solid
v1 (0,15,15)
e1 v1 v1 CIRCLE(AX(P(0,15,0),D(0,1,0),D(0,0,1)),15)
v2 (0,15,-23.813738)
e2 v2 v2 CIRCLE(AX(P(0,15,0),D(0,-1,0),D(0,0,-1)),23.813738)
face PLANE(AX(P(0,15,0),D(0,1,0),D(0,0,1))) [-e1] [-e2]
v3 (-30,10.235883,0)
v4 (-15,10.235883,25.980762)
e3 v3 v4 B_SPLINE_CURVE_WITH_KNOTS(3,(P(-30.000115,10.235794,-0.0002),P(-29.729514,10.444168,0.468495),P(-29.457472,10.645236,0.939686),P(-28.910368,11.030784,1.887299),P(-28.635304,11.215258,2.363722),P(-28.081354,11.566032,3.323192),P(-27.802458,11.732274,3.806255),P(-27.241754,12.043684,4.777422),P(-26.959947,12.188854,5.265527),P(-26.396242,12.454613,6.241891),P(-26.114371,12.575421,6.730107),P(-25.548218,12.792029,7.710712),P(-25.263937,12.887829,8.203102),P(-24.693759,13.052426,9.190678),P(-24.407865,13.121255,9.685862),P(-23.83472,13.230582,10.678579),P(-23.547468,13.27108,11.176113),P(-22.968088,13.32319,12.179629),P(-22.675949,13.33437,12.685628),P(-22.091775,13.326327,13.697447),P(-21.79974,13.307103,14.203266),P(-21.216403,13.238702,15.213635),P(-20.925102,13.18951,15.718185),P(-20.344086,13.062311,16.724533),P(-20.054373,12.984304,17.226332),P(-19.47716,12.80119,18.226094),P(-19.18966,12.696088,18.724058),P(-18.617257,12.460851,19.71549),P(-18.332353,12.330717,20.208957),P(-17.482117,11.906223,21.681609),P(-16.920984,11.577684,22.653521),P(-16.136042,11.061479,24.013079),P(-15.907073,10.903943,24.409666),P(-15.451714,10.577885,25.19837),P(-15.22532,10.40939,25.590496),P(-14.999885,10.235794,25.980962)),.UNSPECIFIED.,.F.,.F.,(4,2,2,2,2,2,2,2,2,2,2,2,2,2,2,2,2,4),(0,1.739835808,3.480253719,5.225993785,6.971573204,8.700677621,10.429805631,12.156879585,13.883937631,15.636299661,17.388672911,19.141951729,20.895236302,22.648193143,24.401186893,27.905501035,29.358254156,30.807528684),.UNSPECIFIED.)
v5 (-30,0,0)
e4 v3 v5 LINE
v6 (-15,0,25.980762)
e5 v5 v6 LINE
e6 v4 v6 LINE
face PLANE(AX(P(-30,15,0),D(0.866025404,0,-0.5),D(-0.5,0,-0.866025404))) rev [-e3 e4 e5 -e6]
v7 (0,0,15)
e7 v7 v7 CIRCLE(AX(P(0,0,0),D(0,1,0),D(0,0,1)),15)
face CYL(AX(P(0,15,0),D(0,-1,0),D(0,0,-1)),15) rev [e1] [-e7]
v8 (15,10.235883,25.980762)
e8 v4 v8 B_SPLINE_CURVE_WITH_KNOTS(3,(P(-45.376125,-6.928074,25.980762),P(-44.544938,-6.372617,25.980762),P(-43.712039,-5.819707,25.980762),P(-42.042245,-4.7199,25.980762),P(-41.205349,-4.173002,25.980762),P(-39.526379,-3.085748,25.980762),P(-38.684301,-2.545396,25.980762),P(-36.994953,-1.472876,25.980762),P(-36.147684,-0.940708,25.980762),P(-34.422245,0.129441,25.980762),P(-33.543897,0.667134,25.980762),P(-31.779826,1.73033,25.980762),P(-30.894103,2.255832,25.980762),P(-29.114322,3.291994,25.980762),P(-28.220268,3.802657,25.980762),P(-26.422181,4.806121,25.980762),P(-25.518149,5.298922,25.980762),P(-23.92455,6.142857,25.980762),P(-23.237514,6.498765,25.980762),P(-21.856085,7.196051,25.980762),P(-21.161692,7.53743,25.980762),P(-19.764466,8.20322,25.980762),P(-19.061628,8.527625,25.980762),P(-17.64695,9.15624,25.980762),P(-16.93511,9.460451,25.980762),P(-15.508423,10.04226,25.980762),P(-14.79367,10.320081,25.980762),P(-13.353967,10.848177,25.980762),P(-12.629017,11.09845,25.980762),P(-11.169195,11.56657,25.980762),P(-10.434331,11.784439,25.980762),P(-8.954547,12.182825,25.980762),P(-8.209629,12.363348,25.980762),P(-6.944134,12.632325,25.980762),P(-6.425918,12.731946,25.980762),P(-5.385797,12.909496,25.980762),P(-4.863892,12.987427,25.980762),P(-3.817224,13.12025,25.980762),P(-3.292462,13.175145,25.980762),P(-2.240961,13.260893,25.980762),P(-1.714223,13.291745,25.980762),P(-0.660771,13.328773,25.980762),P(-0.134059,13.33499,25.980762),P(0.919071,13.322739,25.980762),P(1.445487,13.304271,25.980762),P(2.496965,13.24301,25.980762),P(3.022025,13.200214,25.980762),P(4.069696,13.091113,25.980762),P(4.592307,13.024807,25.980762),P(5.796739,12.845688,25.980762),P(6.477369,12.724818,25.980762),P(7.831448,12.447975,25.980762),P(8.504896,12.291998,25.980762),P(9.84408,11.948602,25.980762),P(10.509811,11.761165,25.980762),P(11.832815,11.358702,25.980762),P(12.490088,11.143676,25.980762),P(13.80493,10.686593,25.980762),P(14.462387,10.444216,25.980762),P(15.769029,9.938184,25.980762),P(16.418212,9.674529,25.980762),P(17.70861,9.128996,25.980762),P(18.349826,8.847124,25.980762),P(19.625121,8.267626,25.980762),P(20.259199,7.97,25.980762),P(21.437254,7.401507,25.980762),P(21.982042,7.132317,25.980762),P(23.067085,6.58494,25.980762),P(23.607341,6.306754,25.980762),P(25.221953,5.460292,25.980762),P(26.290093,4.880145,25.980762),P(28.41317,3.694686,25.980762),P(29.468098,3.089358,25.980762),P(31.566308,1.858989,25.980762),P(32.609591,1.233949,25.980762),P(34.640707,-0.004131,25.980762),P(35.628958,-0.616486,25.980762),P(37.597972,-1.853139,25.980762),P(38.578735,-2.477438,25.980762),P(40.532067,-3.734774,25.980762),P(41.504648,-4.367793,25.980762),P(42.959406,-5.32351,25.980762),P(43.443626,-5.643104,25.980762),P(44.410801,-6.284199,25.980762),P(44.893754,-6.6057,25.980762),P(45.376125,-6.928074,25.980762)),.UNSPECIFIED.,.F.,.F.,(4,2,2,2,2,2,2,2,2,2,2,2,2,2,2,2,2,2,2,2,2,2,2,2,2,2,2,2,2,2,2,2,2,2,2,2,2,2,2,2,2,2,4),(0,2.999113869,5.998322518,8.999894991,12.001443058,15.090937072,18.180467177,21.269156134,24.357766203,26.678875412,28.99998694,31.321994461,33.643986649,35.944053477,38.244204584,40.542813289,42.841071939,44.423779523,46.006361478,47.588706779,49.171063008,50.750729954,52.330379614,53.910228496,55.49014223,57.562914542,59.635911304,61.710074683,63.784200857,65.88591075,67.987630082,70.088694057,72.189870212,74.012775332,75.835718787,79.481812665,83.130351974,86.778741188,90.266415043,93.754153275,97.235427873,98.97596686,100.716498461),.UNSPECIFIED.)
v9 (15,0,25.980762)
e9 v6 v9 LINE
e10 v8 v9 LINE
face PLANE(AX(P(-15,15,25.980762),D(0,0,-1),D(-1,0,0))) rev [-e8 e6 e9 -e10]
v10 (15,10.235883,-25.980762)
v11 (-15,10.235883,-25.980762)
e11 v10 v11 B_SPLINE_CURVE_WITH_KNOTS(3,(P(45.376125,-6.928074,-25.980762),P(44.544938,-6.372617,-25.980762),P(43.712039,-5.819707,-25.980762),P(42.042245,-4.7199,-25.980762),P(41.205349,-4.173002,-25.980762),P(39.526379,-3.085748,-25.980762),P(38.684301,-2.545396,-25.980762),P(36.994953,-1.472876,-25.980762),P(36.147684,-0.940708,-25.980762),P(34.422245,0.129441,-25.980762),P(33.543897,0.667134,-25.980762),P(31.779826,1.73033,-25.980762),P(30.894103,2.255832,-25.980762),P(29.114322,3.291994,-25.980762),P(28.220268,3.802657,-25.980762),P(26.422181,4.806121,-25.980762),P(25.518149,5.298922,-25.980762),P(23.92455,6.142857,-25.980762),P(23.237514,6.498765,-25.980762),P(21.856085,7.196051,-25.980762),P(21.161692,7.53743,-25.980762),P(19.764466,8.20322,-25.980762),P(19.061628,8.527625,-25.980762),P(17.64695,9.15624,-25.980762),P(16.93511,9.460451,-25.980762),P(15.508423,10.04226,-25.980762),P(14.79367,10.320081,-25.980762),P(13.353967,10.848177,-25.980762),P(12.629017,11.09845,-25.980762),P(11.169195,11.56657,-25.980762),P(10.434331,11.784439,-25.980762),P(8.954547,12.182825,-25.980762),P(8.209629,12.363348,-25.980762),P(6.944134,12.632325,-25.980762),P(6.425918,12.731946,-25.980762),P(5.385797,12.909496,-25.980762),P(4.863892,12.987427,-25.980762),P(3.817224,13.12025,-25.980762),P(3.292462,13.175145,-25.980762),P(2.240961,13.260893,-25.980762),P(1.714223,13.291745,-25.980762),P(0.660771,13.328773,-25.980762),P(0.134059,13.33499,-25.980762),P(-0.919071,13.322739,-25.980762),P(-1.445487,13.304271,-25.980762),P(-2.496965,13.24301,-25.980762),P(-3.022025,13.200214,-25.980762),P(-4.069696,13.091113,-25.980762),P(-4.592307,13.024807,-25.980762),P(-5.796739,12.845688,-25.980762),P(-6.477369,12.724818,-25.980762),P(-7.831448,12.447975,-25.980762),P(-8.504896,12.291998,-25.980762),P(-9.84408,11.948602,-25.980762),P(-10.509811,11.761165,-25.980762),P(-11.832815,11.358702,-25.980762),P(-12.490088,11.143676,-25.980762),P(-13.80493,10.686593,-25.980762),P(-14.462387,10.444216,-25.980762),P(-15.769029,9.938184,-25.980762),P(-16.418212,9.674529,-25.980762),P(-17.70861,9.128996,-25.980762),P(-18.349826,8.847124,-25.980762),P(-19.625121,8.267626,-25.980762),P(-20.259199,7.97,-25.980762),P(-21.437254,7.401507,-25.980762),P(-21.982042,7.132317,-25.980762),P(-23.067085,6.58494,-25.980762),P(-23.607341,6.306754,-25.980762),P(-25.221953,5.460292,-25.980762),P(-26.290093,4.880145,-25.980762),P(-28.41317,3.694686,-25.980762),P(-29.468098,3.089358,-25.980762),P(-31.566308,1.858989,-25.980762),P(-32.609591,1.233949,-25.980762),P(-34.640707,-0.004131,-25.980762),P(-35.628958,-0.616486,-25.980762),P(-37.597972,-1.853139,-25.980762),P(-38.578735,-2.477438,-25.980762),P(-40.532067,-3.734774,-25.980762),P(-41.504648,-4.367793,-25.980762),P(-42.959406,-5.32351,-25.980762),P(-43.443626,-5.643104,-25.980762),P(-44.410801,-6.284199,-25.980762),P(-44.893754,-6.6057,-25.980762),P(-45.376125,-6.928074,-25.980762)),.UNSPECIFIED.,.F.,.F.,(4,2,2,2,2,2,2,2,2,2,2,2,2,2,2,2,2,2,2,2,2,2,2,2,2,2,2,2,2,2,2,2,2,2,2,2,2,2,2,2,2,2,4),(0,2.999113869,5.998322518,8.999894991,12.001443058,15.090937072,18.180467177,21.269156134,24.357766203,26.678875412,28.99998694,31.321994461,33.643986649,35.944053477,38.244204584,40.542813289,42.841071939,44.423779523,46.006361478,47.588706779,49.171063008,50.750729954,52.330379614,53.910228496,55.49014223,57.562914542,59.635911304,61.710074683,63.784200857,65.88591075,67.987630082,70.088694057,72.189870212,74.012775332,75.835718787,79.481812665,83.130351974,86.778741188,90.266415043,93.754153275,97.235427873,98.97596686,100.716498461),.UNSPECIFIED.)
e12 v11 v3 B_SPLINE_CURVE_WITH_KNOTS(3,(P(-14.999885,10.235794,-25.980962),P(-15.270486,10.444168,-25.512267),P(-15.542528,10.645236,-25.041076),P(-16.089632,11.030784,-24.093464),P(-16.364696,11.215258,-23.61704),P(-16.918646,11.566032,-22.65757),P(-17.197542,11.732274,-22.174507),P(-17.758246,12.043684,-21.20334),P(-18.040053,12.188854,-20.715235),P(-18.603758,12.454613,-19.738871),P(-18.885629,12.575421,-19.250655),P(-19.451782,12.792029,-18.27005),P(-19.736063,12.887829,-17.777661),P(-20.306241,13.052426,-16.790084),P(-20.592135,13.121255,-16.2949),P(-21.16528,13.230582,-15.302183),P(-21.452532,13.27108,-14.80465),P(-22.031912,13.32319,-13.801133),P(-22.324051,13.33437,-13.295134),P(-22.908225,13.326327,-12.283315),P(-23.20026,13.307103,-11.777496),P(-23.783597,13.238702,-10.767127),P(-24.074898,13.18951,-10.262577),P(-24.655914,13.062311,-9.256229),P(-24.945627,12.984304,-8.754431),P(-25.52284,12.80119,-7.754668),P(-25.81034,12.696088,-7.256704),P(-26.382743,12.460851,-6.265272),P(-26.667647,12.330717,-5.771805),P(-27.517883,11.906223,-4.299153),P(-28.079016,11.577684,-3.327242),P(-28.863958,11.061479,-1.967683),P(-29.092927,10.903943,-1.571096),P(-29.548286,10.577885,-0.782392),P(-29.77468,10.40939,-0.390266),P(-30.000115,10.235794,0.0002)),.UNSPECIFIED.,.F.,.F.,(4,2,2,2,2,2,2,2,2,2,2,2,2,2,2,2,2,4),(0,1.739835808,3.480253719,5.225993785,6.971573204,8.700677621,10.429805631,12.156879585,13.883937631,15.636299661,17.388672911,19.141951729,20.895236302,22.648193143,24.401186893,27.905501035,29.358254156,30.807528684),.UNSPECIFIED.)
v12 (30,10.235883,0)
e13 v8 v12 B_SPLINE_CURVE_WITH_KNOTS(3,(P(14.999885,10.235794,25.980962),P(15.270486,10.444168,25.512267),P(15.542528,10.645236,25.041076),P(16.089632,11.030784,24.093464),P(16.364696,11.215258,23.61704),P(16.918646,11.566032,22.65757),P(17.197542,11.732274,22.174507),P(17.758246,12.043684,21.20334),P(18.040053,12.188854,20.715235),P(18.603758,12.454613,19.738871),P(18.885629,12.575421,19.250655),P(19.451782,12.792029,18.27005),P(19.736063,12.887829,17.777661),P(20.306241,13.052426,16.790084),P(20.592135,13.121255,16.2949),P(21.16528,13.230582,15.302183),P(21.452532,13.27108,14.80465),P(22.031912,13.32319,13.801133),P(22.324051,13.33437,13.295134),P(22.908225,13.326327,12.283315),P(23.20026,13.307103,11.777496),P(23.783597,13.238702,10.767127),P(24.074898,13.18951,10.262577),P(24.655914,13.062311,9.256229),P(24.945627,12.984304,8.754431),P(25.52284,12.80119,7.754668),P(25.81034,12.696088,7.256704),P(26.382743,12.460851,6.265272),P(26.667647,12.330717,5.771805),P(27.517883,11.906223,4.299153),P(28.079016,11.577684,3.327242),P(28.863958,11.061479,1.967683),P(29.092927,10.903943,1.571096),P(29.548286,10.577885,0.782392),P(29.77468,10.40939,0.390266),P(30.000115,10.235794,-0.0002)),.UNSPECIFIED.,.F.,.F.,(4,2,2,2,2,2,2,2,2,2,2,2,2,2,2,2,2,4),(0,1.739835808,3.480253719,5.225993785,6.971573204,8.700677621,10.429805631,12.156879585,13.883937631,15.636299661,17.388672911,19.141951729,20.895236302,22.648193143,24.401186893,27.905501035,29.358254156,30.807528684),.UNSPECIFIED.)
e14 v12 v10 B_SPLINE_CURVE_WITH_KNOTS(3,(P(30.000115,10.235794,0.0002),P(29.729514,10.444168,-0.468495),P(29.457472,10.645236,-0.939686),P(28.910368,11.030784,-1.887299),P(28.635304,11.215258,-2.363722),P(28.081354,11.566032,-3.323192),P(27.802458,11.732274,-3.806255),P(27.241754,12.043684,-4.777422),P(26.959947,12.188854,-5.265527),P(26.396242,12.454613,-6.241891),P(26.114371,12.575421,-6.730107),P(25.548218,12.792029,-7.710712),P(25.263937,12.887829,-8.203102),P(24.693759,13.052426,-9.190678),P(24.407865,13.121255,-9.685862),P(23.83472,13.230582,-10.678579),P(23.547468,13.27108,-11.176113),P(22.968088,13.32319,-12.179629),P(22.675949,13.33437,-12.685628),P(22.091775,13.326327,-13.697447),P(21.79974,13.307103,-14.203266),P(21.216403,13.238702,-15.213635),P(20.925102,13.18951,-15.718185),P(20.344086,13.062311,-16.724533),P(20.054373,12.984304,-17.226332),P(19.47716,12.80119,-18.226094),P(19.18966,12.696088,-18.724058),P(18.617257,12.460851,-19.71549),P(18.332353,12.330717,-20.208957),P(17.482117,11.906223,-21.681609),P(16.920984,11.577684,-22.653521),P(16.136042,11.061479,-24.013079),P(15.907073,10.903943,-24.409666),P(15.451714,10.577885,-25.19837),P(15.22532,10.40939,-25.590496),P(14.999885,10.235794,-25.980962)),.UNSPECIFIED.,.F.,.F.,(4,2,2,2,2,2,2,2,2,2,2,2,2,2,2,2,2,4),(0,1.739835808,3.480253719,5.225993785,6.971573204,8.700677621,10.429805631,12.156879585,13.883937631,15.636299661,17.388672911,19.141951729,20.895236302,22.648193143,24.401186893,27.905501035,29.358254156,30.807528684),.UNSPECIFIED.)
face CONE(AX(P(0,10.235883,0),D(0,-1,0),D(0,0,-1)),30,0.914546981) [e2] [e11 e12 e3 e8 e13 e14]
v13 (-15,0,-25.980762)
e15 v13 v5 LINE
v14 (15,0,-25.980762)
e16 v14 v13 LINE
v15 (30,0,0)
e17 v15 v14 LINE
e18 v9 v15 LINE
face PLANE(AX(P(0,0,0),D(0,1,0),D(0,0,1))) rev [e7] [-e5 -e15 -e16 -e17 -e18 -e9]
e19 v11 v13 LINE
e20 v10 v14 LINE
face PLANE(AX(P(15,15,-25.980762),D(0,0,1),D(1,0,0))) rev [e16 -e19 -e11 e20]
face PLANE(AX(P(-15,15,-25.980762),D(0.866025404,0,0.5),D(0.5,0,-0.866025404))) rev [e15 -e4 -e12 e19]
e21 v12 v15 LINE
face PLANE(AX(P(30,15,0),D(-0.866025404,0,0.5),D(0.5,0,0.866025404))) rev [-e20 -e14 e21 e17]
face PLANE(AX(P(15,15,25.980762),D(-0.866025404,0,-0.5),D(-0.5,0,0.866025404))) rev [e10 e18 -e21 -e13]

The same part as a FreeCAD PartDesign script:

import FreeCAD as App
import Part
import Sketcher
from FreeCAD import Vector
Q = App.Units.Quantity


def add_polygon(sketch, points):
    """Adds a closed chain of lines whose ends are joined by coincident constraints."""
    first, n = sketch.GeometryCount, len(points)
    for a, b in zip(points, points[1:] + points[:1]):
        sketch.addGeometry(Part.LineSegment(App.Vector(*a, 0), App.Vector(*b, 0)), False)
    for i in range(n):
        sketch.addConstraint(Sketcher.Constraint("Coincident", first + i, 2, first + (i + 1) % n, 1))

doc = App.newDocument("Part")
body = doc.addObject("PartDesign::Body", "Body")

# Sketch on XZ plane
sketch1 = doc.addObject("Sketcher::SketchObject", "Sketch")
body.addObject(sketch1)
sketch1.AttachmentSupport = (doc.XZ_Plane, [""])
sketch1.MapMode = "FlatFace"
add_polygon(sketch1, [(30, 0), (15, -25.980762), (-15, -25.980762), (-30, 0), (-15, 25.980762), (15, 25.980762)])  # lines 0-5
sketch1.addGeometry(Part.Circle(Vector(0, 0, 0), Vector(0, 0, 1), 15), False)  # 6
sketch1.addConstraint([
    Sketcher.Constraint("Horizontal", 1),
    Sketcher.Constraint("Horizontal", 4),
    Sketcher.Constraint("Coincident", 6, 3, -1, 1),
    Sketcher.Constraint("Symmetric", 0, 2, 3, 2, -1, 1),
    Sketcher.Constraint("Symmetric", 2, 2, 5, 2, -1, 1),
    Sketcher.Constraint("PointOnObject", 2, 2, -1),
    Sketcher.Constraint("Parallel", 2, 5),
    Sketcher.Constraint("Vertical", 1, 2, 3, 2),
    Sketcher.Constraint("Diameter", 6, 30.0),
    Sketcher.Constraint("DistanceX", 1, 2, 1, 1, 30.0),
    Sketcher.Constraint("Angle", 0, Q("-120 deg")),
    Sketcher.Constraint("Distance", 0, 30.0),
])
pad1 = doc.addObject("PartDesign::Pad", "Pad")
body.addObject(pad1)
pad1.Profile = sketch1
pad1.Length = 15
pad1.Reversed = True

# Sketch on XY plane
sketch2 = doc.addObject("Sketcher::SketchObject", "Sketch001")
body.addObject(sketch2)
sketch2.AttachmentSupport = (doc.XY_Plane, [""])
sketch2.MapMode = "FlatFace"
add_polygon(sketch2, [(-30, 15), (-30, 10.235883), (-23.813738, 15)])  # lines 0-2
sketch2.addConstraint([
    Sketcher.Constraint("Vertical", 0),
    Sketcher.Constraint("Horizontal", 2),
    Sketcher.Constraint("DistanceX", 0, 2, -1, 1, 30.0),
    Sketcher.Constraint("DistanceY", -1, 1, 1, 2, 15.0),
    Sketcher.Constraint("DistanceX", 2, 2, 2, 1, 6.186262),
    Sketcher.Constraint("DistanceY", 0, 2, 0, 1, 4.764117),
])
groove = doc.addObject("PartDesign::Groove", "Groove")
body.addObject(groove)
groove.Profile = sketch2
groove.ReferenceAxis = (sketch2, ["V_Axis"])
groove.Angle = 360

doc.recompute()
